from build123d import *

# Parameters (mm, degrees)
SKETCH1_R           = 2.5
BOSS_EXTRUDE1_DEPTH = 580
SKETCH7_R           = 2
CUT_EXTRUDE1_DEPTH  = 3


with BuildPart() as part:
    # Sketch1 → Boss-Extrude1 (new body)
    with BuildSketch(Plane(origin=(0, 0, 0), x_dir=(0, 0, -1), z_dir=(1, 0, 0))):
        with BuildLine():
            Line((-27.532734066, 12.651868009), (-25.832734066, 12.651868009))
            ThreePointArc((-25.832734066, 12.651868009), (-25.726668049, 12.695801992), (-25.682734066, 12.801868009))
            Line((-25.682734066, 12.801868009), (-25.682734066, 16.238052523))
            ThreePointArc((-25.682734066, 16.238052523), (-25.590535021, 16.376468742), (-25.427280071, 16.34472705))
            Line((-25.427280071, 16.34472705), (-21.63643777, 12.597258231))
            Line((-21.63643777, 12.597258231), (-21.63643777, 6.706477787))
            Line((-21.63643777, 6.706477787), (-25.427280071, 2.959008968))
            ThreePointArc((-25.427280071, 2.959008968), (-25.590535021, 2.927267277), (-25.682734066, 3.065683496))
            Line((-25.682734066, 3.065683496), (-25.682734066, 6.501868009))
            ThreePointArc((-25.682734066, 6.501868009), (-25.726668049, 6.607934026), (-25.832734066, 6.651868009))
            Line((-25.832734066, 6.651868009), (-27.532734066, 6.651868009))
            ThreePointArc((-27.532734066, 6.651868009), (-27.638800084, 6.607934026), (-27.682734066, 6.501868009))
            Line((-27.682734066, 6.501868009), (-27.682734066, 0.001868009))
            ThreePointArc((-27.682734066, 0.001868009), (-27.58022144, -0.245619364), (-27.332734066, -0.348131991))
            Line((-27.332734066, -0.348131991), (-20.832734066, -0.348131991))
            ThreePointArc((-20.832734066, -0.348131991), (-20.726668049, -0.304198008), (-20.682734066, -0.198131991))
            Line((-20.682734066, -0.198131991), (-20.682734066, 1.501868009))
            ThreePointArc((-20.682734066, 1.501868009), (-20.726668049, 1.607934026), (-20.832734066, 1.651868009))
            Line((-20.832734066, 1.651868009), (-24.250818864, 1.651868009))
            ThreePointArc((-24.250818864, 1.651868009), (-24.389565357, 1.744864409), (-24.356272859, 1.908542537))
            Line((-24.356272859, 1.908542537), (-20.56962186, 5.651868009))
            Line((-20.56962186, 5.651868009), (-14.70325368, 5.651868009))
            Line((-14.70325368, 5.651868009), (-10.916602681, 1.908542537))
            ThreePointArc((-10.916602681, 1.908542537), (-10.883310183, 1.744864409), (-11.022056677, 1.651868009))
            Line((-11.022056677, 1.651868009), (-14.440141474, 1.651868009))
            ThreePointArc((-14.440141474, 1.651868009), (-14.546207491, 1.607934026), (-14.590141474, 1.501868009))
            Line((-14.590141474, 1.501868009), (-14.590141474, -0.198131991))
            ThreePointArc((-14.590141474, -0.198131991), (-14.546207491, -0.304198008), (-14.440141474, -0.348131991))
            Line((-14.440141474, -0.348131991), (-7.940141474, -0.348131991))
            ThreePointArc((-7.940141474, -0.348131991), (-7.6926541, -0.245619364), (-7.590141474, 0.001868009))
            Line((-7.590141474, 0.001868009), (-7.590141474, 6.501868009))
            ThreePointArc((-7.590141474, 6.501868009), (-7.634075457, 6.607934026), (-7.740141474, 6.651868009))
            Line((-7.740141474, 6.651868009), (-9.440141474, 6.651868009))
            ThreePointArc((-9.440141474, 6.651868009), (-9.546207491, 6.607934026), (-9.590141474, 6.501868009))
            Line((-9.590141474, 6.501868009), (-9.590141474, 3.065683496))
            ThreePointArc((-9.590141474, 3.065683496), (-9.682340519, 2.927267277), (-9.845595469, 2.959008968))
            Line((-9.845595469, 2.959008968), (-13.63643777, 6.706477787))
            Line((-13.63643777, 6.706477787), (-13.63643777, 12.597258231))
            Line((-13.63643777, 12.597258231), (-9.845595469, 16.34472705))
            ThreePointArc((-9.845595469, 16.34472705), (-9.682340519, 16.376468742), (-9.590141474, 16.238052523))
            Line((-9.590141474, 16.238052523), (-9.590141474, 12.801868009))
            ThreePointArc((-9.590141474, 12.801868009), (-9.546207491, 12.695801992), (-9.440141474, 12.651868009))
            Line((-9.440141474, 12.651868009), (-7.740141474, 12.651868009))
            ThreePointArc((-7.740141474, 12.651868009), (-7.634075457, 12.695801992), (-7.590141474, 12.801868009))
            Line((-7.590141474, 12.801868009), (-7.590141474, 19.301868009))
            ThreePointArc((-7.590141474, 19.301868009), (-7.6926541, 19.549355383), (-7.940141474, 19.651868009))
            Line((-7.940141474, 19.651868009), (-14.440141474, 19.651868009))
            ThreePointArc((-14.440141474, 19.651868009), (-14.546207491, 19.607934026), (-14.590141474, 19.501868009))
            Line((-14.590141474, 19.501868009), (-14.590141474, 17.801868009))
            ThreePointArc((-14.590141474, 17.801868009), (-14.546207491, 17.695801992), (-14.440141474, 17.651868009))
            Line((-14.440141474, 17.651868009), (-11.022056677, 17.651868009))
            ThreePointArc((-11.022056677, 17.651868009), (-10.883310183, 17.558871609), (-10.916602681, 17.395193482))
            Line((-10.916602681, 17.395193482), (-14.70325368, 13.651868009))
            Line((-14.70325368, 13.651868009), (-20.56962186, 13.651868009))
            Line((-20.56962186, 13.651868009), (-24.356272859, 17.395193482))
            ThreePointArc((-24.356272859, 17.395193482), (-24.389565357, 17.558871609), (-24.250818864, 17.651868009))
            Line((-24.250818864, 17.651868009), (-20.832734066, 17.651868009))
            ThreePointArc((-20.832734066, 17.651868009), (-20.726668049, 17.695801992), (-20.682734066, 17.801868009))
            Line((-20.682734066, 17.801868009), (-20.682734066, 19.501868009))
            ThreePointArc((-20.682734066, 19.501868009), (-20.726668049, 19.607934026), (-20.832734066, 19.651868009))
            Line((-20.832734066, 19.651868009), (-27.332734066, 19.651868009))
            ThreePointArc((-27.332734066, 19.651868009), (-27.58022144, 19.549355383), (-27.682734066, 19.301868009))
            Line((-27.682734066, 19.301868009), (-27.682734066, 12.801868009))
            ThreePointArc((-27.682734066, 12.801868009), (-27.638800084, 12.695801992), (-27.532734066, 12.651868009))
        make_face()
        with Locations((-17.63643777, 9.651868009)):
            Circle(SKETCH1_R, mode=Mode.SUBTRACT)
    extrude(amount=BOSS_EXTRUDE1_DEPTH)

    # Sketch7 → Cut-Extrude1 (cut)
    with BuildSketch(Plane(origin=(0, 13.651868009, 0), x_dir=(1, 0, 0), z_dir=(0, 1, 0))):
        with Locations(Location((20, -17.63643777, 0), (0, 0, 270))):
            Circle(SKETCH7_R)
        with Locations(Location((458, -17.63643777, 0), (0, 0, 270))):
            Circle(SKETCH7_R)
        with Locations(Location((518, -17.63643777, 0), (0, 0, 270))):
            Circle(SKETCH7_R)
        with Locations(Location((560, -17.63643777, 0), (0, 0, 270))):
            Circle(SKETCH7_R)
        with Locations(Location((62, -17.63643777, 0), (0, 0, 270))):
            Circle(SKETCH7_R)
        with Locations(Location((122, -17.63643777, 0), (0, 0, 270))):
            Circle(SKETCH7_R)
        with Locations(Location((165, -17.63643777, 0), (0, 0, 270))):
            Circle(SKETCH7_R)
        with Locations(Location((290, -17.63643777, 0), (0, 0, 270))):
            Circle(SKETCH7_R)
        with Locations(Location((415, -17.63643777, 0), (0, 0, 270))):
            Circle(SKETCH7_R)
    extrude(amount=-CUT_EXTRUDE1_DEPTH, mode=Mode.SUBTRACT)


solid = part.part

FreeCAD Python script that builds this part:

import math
import FreeCAD as App
import Part
import Sketcher

doc = App.newDocument("Part")
body = doc.addObject("PartDesign::Body", "Body")

sketch1 = doc.addObject("Sketcher::SketchObject", "Sketch")
body.addObject(sketch1)
sketch1.AttachmentSupport = (doc.YZ_Plane, [""])
sketch1.MapMode = "FlatFace"
sketch1.addGeometry([
    Part.LineSegment(App.Vector(12.65, 27.53, 0), App.Vector(12.65, 25.83, 0)),
    Part.ArcOfCircle(Part.Circle(App.Vector(12.8, 25.83, 0), App.Vector(0, 0, 1), 0.15), math.radians(-180), math.radians(-90)),
    Part.LineSegment(App.Vector(12.8, 25.68, 0), App.Vector(16.24, 25.68, 0)),
    Part.ArcOfCircle(Part.Circle(App.Vector(16.24, 25.53, 0), App.Vector(0, 0, 1), 0.15), math.radians(-45), math.radians(90)),
    Part.LineSegment(App.Vector(16.34, 25.43, 0), App.Vector(12.6, 21.64, 0)),
    Part.LineSegment(App.Vector(12.6, 21.64, 0), App.Vector(6.71, 21.64, 0)),
    Part.LineSegment(App.Vector(6.71, 21.64, 0), App.Vector(2.96, 25.43, 0)),
    Part.ArcOfCircle(Part.Circle(App.Vector(3.07, 25.53, 0), App.Vector(0, 0, 1), 0.15), math.radians(90), math.radians(225)),
    Part.LineSegment(App.Vector(3.07, 25.68, 0), App.Vector(6.5, 25.68, 0)),
    Part.ArcOfCircle(Part.Circle(App.Vector(6.5, 25.83, 0), App.Vector(0, 0, 1), 0.15), math.radians(-90), math.radians(0)),
    Part.LineSegment(App.Vector(6.65, 25.83, 0), App.Vector(6.65, 27.53, 0)),
    Part.ArcOfCircle(Part.Circle(App.Vector(6.5, 27.53, 0), App.Vector(0, 0, 1), 0.15), math.radians(0), math.radians(90)),
    Part.LineSegment(App.Vector(6.5, 27.68, 0), App.Vector(0, 27.68, 0)),
    Part.ArcOfCircle(Part.Circle(App.Vector(0, 27.33, 0), App.Vector(0, 0, 1), 0.35), math.radians(90), math.radians(180)),
    Part.LineSegment(App.Vector(-0.35, 27.33, 0), App.Vector(-0.35, 20.83, 0)),
    Part.ArcOfCircle(Part.Circle(App.Vector(-0.2, 20.83, 0), App.Vector(0, 0, 1), 0.15), math.radians(-180), math.radians(-90)),
    Part.LineSegment(App.Vector(-0.2, 20.68, 0), App.Vector(1.5, 20.68, 0)),
    Part.ArcOfCircle(Part.Circle(App.Vector(1.5, 20.83, 0), App.Vector(0, 0, 1), 0.15), math.radians(-90), math.radians(0)),
    Part.LineSegment(App.Vector(1.65, 20.83, 0), App.Vector(1.65, 24.25, 0)),
    Part.ArcOfCircle(Part.Circle(App.Vector(1.8, 24.25, 0), App.Vector(0, 0, 1), 0.15), math.radians(45), math.radians(180)),
    Part.LineSegment(App.Vector(1.91, 24.36, 0), App.Vector(5.65, 20.57, 0)),
    Part.LineSegment(App.Vector(5.65, 20.57, 0), App.Vector(5.65, 14.7, 0)),
    Part.LineSegment(App.Vector(5.65, 14.7, 0), App.Vector(1.91, 10.92, 0)),
    Part.ArcOfCircle(Part.Circle(App.Vector(1.8, 11.02, 0), App.Vector(0, 0, 1), 0.15), math.radians(180), math.radians(315)),
    Part.LineSegment(App.Vector(1.65, 11.02, 0), App.Vector(1.65, 14.44, 0)),
    Part.ArcOfCircle(Part.Circle(App.Vector(1.5, 14.44, 0), App.Vector(0, 0, 1), 0.15), math.radians(0), math.radians(90)),
    Part.LineSegment(App.Vector(1.5, 14.59, 0), App.Vector(-0.2, 14.59, 0)),
    Part.ArcOfCircle(Part.Circle(App.Vector(-0.2, 14.44, 0), App.Vector(0, 0, 1), 0.15), math.radians(90), math.radians(180)),
    Part.LineSegment(App.Vector(-0.35, 14.44, 0), App.Vector(-0.35, 7.94, 0)),
    Part.ArcOfCircle(Part.Circle(App.Vector(0, 7.94, 0), App.Vector(0, 0, 1), 0.35), math.radians(180), math.radians(270)),
    Part.LineSegment(App.Vector(0, 7.59, 0), App.Vector(6.5, 7.59, 0)),
    Part.ArcOfCircle(Part.Circle(App.Vector(6.5, 7.74, 0), App.Vector(0, 0, 1), 0.15), math.radians(-90), math.radians(0)),
    Part.LineSegment(App.Vector(6.65, 7.74, 0), App.Vector(6.65, 9.44, 0)),
    Part.ArcOfCircle(Part.Circle(App.Vector(6.5, 9.44, 0), App.Vector(0, 0, 1), 0.15), math.radians(0), math.radians(90)),
    Part.LineSegment(App.Vector(6.5, 9.59, 0), App.Vector(3.07, 9.59, 0)),
    Part.ArcOfCircle(Part.Circle(App.Vector(3.07, 9.74, 0), App.Vector(0, 0, 1), 0.15), math.radians(135), math.radians(270)),
    Part.LineSegment(App.Vector(2.96, 9.85, 0), App.Vector(6.71, 13.64, 0)),
    Part.LineSegment(App.Vector(6.71, 13.64, 0), App.Vector(12.6, 13.64, 0)),
    Part.LineSegment(App.Vector(12.6, 13.64, 0), App.Vector(16.34, 9.85, 0)),
    Part.ArcOfCircle(Part.Circle(App.Vector(16.24, 9.74, 0), App.Vector(0, 0, 1), 0.15), math.radians(-90), math.radians(45)),
    Part.LineSegment(App.Vector(16.24, 9.59, 0), App.Vector(12.8, 9.59, 0)),
    Part.ArcOfCircle(Part.Circle(App.Vector(12.8, 9.44, 0), App.Vector(0, 0, 1), 0.15), math.radians(90), math.radians(180)),
    Part.LineSegment(App.Vector(12.65, 9.44, 0), App.Vector(12.65, 7.74, 0)),
    Part.ArcOfCircle(Part.Circle(App.Vector(12.8, 7.74, 0), App.Vector(0, 0, 1), 0.15), math.radians(-180), math.radians(-90)),
    Part.LineSegment(App.Vector(12.8, 7.59, 0), App.Vector(19.3, 7.59, 0)),
    Part.ArcOfCircle(Part.Circle(App.Vector(19.3, 7.94, 0), App.Vector(0, 0, 1), 0.35), math.radians(-90), math.radians(0)),
    Part.LineSegment(App.Vector(19.65, 7.94, 0), App.Vector(19.65, 14.44, 0)),
    Part.ArcOfCircle(Part.Circle(App.Vector(19.5, 14.44, 0), App.Vector(0, 0, 1), 0.15), math.radians(0), math.radians(90)),
    Part.LineSegment(App.Vector(19.5, 14.59, 0), App.Vector(17.8, 14.59, 0)),
    Part.ArcOfCircle(Part.Circle(App.Vector(17.8, 14.44, 0), App.Vector(0, 0, 1), 0.15), math.radians(90), math.radians(180)),
    Part.LineSegment(App.Vector(17.65, 14.44, 0), App.Vector(17.65, 11.02, 0)),
    Part.ArcOfCircle(Part.Circle(App.Vector(17.5, 11.02, 0), App.Vector(0, 0, 1), 0.15), math.radians(-135), math.radians(0)),
    Part.LineSegment(App.Vector(17.4, 10.92, 0), App.Vector(13.65, 14.7, 0)),
    Part.LineSegment(App.Vector(13.65, 14.7, 0), App.Vector(13.65, 20.57, 0)),
    Part.LineSegment(App.Vector(13.65, 20.57, 0), App.Vector(17.4, 24.36, 0)),
    Part.ArcOfCircle(Part.Circle(App.Vector(17.5, 24.25, 0), App.Vector(0, 0, 1), 0.15), math.radians(0), math.radians(135)),
    Part.LineSegment(App.Vector(17.65, 24.25, 0), App.Vector(17.65, 20.83, 0)),
    Part.ArcOfCircle(Part.Circle(App.Vector(17.8, 20.83, 0), App.Vector(0, 0, 1), 0.15), math.radians(-180), math.radians(-90)),
    Part.LineSegment(App.Vector(17.8, 20.68, 0), App.Vector(19.5, 20.68, 0)),
    Part.ArcOfCircle(Part.Circle(App.Vector(19.5, 20.83, 0), App.Vector(0, 0, 1), 0.15), math.radians(-90), math.radians(0)),
    Part.LineSegment(App.Vector(19.65, 20.83, 0), App.Vector(19.65, 27.33, 0)),
    Part.ArcOfCircle(Part.Circle(App.Vector(19.3, 27.33, 0), App.Vector(0, 0, 1), 0.35), math.radians(0), math.radians(90)),
    Part.LineSegment(App.Vector(19.3, 27.68, 0), App.Vector(12.8, 27.68, 0)),
    Part.ArcOfCircle(Part.Circle(App.Vector(12.8, 27.53, 0), App.Vector(0, 0, 1), 0.15), math.radians(90), math.radians(180)),
    Part.Circle(App.Vector(9.65, 17.64, 0), App.Vector(0, 0, 1), 2.5),
], False)
sketch1.addConstraint([
    Sketcher.Constraint("Tangent", 0, 2, 1, 1),
    Sketcher.Constraint("Tangent", 1, 2, 2, 1),
    Sketcher.Constraint("Tangent", 2, 2, 3, 2),
    Sketcher.Constraint("Tangent", 3, 1, 4, 1),
    Sketcher.Constraint("Coincident", 4, 2, 5, 1),
    Sketcher.Constraint("Coincident", 5, 2, 6, 1),
    Sketcher.Constraint("Tangent", 6, 2, 7, 2),
    Sketcher.Constraint("Tangent", 7, 1, 8, 1),
    Sketcher.Constraint("Tangent", 8, 2, 9, 1),
    Sketcher.Constraint("Tangent", 9, 2, 10, 1),
    Sketcher.Constraint("Tangent", 10, 2, 11, 1),
    Sketcher.Constraint("Tangent", 11, 2, 12, 1),
    Sketcher.Constraint("Tangent", 12, 2, 13, 1),
    Sketcher.Constraint("Tangent", 13, 2, 14, 1),
    Sketcher.Constraint("Tangent", 14, 2, 15, 1),
    Sketcher.Constraint("Tangent", 15, 2, 16, 1),
    Sketcher.Constraint("Tangent", 16, 2, 17, 1),
    Sketcher.Constraint("Tangent", 17, 2, 18, 1),
    Sketcher.Constraint("Tangent", 18, 2, 19, 2),
    Sketcher.Constraint("Tangent", 19, 1, 20, 1),
    Sketcher.Constraint("Coincident", 20, 2, 21, 1),
    Sketcher.Constraint("Coincident", 21, 2, 22, 1),
    Sketcher.Constraint("Tangent", 22, 2, 23, 2),
    Sketcher.Constraint("Tangent", 23, 1, 24, 1),
    Sketcher.Constraint("Tangent", 24, 2, 25, 1),
    Sketcher.Constraint("Tangent", 25, 2, 26, 1),
    Sketcher.Constraint("Tangent", 26, 2, 27, 1),
    Sketcher.Constraint("Tangent", 27, 2, 28, 1),
    Sketcher.Constraint("Tangent", 28, 2, 29, 1),
    Sketcher.Constraint("Tangent", 29, 2, 30, 1),
    Sketcher.Constraint("Tangent", 30, 2, 31, 1),
    Sketcher.Constraint("Tangent", 31, 2, 32, 1),
    Sketcher.Constraint("Tangent", 32, 2, 33, 1),
    Sketcher.Constraint("Tangent", 33, 2, 34, 1),
    Sketcher.Constraint("Tangent", 34, 2, 35, 2),
    Sketcher.Constraint("Tangent", 35, 1, 36, 1),
    Sketcher.Constraint("Coincident", 36, 2, 37, 1),
    Sketcher.Constraint("Coincident", 37, 2, 38, 1),
    Sketcher.Constraint("Tangent", 38, 2, 39, 2),
    Sketcher.Constraint("Tangent", 39, 1, 40, 1),
    Sketcher.Constraint("Tangent", 40, 2, 41, 1),
    Sketcher.Constraint("Tangent", 41, 2, 42, 1),
    Sketcher.Constraint("Tangent", 42, 2, 43, 1),
    Sketcher.Constraint("Tangent", 43, 2, 44, 1),
    Sketcher.Constraint("Tangent", 44, 2, 45, 1),
    Sketcher.Constraint("Tangent", 45, 2, 46, 1),
    Sketcher.Constraint("Tangent", 46, 2, 47, 1),
    Sketcher.Constraint("Tangent", 47, 2, 48, 1),
    Sketcher.Constraint("Tangent", 48, 2, 49, 1),
    Sketcher.Constraint("Tangent", 49, 2, 50, 1),
    Sketcher.Constraint("Tangent", 50, 2, 51, 2),
    Sketcher.Constraint("Tangent", 51, 1, 52, 1),
    Sketcher.Constraint("Coincident", 52, 2, 53, 1),
    Sketcher.Constraint("Coincident", 53, 2, 54, 1),
    Sketcher.Constraint("Tangent", 54, 2, 55, 2),
    Sketcher.Constraint("Tangent", 55, 1, 56, 1),
    Sketcher.Constraint("Tangent", 56, 2, 57, 1),
    Sketcher.Constraint("Tangent", 57, 2, 58, 1),
    Sketcher.Constraint("Tangent", 58, 2, 59, 1),
    Sketcher.Constraint("Tangent", 59, 2, 60, 1),
    Sketcher.Constraint("Tangent", 60, 2, 61, 1),
    Sketcher.Constraint("Tangent", 61, 2, 62, 1),
    Sketcher.Constraint("Tangent", 62, 2, 63, 1),
    Sketcher.Constraint("Tangent", 63, 2, 0, 1),
    Sketcher.Constraint("Vertical", 0),
    Sketcher.Constraint("Horizontal", 2),
    Sketcher.Constraint("Horizontal", 5),
    Sketcher.Constraint("Horizontal", 8),
    Sketcher.Constraint("Vertical", 10),
    Sketcher.Constraint("Horizontal", 12),
    Sketcher.Constraint("Vertical", 14),
    Sketcher.Constraint("Horizontal", 16),
    Sketcher.Constraint("Vertical", 18),
    Sketcher.Constraint("Vertical", 21),
    Sketcher.Constraint("Vertical", 24),
    Sketcher.Constraint("Horizontal", 26),
    Sketcher.Constraint("Vertical", 28),
    Sketcher.Constraint("Horizontal", 30),
    Sketcher.Constraint("Vertical", 32),
    Sketcher.Constraint("Horizontal", 34),
    Sketcher.Constraint("Horizontal", 37),
    Sketcher.Constraint("Horizontal", 40),
    Sketcher.Constraint("Vertical", 42),
    Sketcher.Constraint("Horizontal", 44),
    Sketcher.Constraint("Vertical", 46),
    Sketcher.Constraint("Horizontal", 48),
    Sketcher.Constraint("Vertical", 50),
    Sketcher.Constraint("Vertical", 53),
    Sketcher.Constraint("Vertical", 56),
    Sketcher.Constraint("Horizontal", 58),
    Sketcher.Constraint("Vertical", 60),
    Sketcher.Constraint("Horizontal", 62),
    Sketcher.Constraint("Equal", 1, 3),
    Sketcher.Constraint("Equal", 3, 7),
    Sketcher.Constraint("Equal", 7, 9),
    Sketcher.Constraint("Equal", 9, 11),
    Sketcher.Constraint("Equal", 11, 15),
    Sketcher.Constraint("Equal", 15, 17),
    Sketcher.Constraint("Equal", 17, 19),
    Sketcher.Constraint("Equal", 19, 23),
    Sketcher.Constraint("Equal", 23, 25),
    Sketcher.Constraint("Equal", 25, 27),
    Sketcher.Constraint("Equal", 13, 29),
    Sketcher.Constraint("Equal", 27, 31),
    Sketcher.Constraint("Equal", 31, 33),
    Sketcher.Constraint("Equal", 33, 35),
    Sketcher.Constraint("Equal", 35, 39),
    Sketcher.Constraint("Equal", 39, 41),
    Sketcher.Constraint("Equal", 41, 43),
    Sketcher.Constraint("Equal", 29, 45),
    Sketcher.Constraint("Equal", 43, 47),
    Sketcher.Constraint("Equal", 47, 49),
    Sketcher.Constraint("Equal", 49, 51),
    Sketcher.Constraint("Equal", 51, 55),
    Sketcher.Constraint("Equal", 55, 57),
    Sketcher.Constraint("Equal", 57, 59),
    Sketcher.Constraint("Equal", 45, 61),
    Sketcher.Constraint("Equal", 59, 63),
    Sketcher.Constraint("Parallel", 6, 20),
    Sketcher.Constraint("Parallel", 4, 22),
    Sketcher.Constraint("Parallel", 22, 36),
    Sketcher.Constraint("Parallel", 20, 38),
    Sketcher.Constraint("Parallel", 38, 52),
    Sketcher.Constraint("Parallel", 36, 54),
    Sketcher.Constraint("Horizontal", 3, 3, 7, 3),
    Sketcher.Constraint("Horizontal", 35, 3, 39, 3),
    Sketcher.Constraint("Horizontal", 31, 3, 43, 3),
    Sketcher.Constraint("Horizontal", 27, 3, 47, 3),
    Sketcher.Constraint("Horizontal", 23, 3, 51, 3),
    Sketcher.Constraint("Horizontal", 19, 3, 55, 3),
    Sketcher.Constraint("Horizontal", 17, 3, 57, 3),
    Sketcher.Constraint("Horizontal", 13, 3, 61, 3),
    Sketcher.Constraint("Horizontal", 3, 1, 6, 2),
    Sketcher.Constraint("Horizontal", 21, 2, 52, 2),
    Sketcher.Constraint("Horizontal", 20, 2, 53, 2),
    Sketcher.Constraint("Vertical", 19, 3, 23, 3),
    Sketcher.Constraint("Vertical", 15, 3, 27, 3),
    Sketcher.Constraint("Vertical", 11, 3, 31, 3),
    Sketcher.Constraint("Vertical", 7, 3, 35, 3),
    Sketcher.Constraint("Vertical", 3, 3, 39, 3),
    Sketcher.Constraint("Vertical", 1, 3, 41, 3),
    Sketcher.Constraint("Vertical", 47, 3, 59, 3),
    Sketcher.Constraint("Vertical", 5, 2, 36, 2),
    Sketcher.Constraint("Equal", 2, 8),
    Sketcher.Constraint("Equal", 30, 44),
    Sketcher.Constraint("Equal", 26, 48),
    Sketcher.Constraint("Equal", 58, 0),
    Sketcher.Constraint("Equal", 62, 14),
    Sketcher.Constraint("Equal", 18, 24),
    Sketcher.Constraint("Equal", 14, 28),
    Sketcher.Constraint("Equal", 10, 32),
    Sketcher.Constraint("Diameter", 64, 5.0),
    Sketcher.Constraint("Radius", 1, 0.15),
    Sketcher.Constraint("Radius", 13, 0.35),
    Sketcher.Constraint("DistanceX", 12, 2, 12, 1, 6.5),
    Sketcher.Constraint("DistanceX", 16, 1, 16, 2, 1.7),
    Sketcher.Constraint("DistanceX", 5, 2, 5, 1, 5.89078),
    Sketcher.Constraint("DistanceY", 21, 2, 21, 1, 5.866368),
    Sketcher.Constraint("Distance", 4, 5.330479),
    Sketcher.Constraint("DistanceX", 2, 1, 2, 2, 3.436185),
    Sketcher.Constraint("DistanceY", 18, 1, 18, 2, 3.418085),
    Sketcher.Constraint("DistanceX", -1, 1, 1, 3, 12.801868),
    Sketcher.Constraint("DistanceX", -1, 1, 9, 3, 6.501868),
    Sketcher.Constraint("DistanceY", -1, 1, 19, 3, 24.250819),
    Sketcher.Constraint("DistanceY", -1, 1, 25, 3, 14.440141),
    Sketcher.Constraint("DistanceX", -1, 1, 64, 3, 9.651868),
    Sketcher.Constraint("DistanceY", -1, 1, 64, 3, 17.636438),
])
pad1 = doc.addObject("PartDesign::Pad", "Pad")
body.addObject(pad1)
pad1.Profile = sketch1
pad1.Length = 580

sketch2 = doc.addObject("Sketcher::SketchObject", "Sketch001")
body.addObject(sketch2)
sketch2.AttachmentSupport = (doc.XZ_Plane, [""])
sketch2.MapMode = "FlatFace"
sketch2.AttachmentOffset = App.Placement(App.Vector(0, 0, -13.651868), App.Rotation())
sketch2.addGeometry([
    Part.Circle(App.Vector(20, 17.6, 0), App.Vector(0, 0, 1), 2),
    Part.Circle(App.Vector(458, 17.6, 0), App.Vector(0, 0, 1), 2),
    Part.Circle(App.Vector(518, 17.6, 0), App.Vector(0, 0, 1), 2),
    Part.Circle(App.Vector(560, 17.6, 0), App.Vector(0, 0, 1), 2),
    Part.Circle(App.Vector(62, 17.6, 0), App.Vector(0, 0, 1), 2),
    Part.Circle(App.Vector(122, 17.6, 0), App.Vector(0, 0, 1), 2),
    Part.Circle(App.Vector(165, 17.6, 0), App.Vector(0, 0, 1), 2),
    Part.Circle(App.Vector(290, 17.6, 0), App.Vector(0, 0, 1), 2),
    Part.Circle(App.Vector(415, 17.6, 0), App.Vector(0, 0, 1), 2),
], False)
sketch2.addConstraint([
    Sketcher.Constraint("Equal", 0, 1),
    Sketcher.Constraint("Equal", 1, 2),
    Sketcher.Constraint("Equal", 2, 3),
    Sketcher.Constraint("Equal", 3, 4),
    Sketcher.Constraint("Equal", 4, 5),
    Sketcher.Constraint("Equal", 5, 6),
    Sketcher.Constraint("Equal", 6, 7),
    Sketcher.Constraint("Equal", 7, 8),
    Sketcher.Constraint("Horizontal", 0, 3, 1, 3),
    Sketcher.Constraint("Horizontal", 1, 3, 2, 3),
    Sketcher.Constraint("Horizontal", 2, 3, 3, 3),
    Sketcher.Constraint("Horizontal", 3, 3, 4, 3),
    Sketcher.Constraint("Horizontal", 4, 3, 5, 3),
    Sketcher.Constraint("Horizontal", 5, 3, 6, 3),
    Sketcher.Constraint("Horizontal", 6, 3, 7, 3),
    Sketcher.Constraint("Horizontal", 7, 3, 8, 3),
    Sketcher.Constraint("Diameter", 0, 4.0),
    Sketcher.Constraint("DistanceX", -1, 1, 0, 3, 20.0),
    Sketcher.Constraint("DistanceX", -1, 1, 1, 3, 458.0),
    Sketcher.Constraint("DistanceX", -1, 1, 2, 3, 518.0),
    Sketcher.Constraint("DistanceX", -1, 1, 3, 3, 560.0),
    Sketcher.Constraint("DistanceX", -1, 1, 4, 3, 62.0),
    Sketcher.Constraint("DistanceX", -1, 1, 5, 3, 122.0),
    Sketcher.Constraint("DistanceX", -1, 1, 6, 3, 165.0),
    Sketcher.Constraint("DistanceX", -1, 1, 7, 3, 290.0),
    Sketcher.Constraint("DistanceX", -1, 1, 8, 3, 415.0),
    Sketcher.Constraint("DistanceY", -1, 1, 0, 3, 17.636438),
])
pocket1 = doc.addObject("PartDesign::Pocket", "Pocket")
body.addObject(pocket1)
pocket1.Profile = sketch2
pocket1.Length = 3
pocket1.Reversed = True

doc.recompute()
